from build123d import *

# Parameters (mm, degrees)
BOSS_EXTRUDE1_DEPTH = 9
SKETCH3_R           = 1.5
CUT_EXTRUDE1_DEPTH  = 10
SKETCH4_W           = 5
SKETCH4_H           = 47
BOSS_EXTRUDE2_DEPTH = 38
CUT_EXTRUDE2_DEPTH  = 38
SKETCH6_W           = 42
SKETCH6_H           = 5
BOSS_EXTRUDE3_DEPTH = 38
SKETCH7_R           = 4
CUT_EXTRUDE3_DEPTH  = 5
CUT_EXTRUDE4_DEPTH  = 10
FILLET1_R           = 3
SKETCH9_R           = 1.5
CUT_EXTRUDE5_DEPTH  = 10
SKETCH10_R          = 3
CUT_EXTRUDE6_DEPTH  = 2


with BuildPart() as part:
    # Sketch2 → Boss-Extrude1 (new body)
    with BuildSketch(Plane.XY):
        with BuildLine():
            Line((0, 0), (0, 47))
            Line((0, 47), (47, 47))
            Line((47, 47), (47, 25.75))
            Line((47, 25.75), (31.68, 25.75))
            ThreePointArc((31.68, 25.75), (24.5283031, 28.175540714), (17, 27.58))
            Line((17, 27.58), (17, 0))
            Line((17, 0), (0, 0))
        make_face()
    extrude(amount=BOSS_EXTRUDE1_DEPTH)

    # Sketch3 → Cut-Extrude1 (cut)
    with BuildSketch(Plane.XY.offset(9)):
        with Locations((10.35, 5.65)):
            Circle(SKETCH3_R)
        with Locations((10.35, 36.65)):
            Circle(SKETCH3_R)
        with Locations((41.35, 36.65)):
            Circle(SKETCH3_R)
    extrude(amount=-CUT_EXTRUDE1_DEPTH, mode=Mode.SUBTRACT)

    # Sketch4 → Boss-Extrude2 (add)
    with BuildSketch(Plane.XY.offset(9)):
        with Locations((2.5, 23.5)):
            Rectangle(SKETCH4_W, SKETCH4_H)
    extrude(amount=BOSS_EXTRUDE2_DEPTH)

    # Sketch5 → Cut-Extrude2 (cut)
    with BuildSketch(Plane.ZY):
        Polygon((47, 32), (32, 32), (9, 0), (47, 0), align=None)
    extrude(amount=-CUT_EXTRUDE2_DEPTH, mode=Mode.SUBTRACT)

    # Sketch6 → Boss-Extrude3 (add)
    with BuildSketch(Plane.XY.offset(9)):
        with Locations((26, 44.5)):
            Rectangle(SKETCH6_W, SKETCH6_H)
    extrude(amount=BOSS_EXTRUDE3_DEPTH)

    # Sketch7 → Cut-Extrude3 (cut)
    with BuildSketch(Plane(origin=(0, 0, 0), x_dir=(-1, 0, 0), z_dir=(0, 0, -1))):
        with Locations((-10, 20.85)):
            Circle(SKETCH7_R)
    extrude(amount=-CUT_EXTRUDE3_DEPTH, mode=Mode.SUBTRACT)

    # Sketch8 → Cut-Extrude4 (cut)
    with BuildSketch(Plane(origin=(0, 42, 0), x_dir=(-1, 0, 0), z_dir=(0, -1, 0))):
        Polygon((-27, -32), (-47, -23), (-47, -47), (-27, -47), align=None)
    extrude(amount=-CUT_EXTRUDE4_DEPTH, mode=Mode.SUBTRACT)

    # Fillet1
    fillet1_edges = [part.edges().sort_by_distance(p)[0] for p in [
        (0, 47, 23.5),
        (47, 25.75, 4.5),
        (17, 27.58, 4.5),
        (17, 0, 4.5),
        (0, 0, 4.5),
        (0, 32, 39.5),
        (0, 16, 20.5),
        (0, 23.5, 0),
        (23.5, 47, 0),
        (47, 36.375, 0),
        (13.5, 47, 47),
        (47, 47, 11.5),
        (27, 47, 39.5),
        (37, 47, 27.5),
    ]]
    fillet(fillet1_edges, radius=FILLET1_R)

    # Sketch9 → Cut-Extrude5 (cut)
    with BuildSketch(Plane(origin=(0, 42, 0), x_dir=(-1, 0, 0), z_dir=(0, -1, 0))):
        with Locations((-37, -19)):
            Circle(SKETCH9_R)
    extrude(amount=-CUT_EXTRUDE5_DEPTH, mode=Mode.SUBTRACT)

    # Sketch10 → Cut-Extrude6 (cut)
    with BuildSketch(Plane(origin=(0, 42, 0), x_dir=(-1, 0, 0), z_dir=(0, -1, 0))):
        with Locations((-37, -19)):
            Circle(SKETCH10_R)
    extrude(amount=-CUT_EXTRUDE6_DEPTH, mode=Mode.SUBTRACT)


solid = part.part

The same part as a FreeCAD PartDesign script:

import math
import FreeCAD as App
import Part
import Sketcher
Q = App.Units.Quantity


def edges_at(feature, points):
    """Names of the edges that pass closest to the given points."""
    edges = feature.Shape.Edges
    near = lambda p: min(range(len(edges)), key=lambda i: edges[i].distToShape(Part.Vertex(*p))[0])
    return sorted({f"Edge{near(p) + 1}" for p in points})

doc = App.newDocument("Part")
body = doc.addObject("PartDesign::Body", "Body")

# Sketch on XY plane
sketch1 = doc.addObject("Sketcher::SketchObject", "Sketch")
body.addObject(sketch1)
sketch1.AttachmentSupport = (doc.XY_Plane, [""])
sketch1.MapMode = "FlatFace"
sketch1.addGeometry([
    Part.LineSegment(App.Vector(0, 47, 0), App.Vector(0, 0, 0)),  # 0
    Part.LineSegment(App.Vector(0, 0, 0), App.Vector(17, 0, 0)),  # 1
    Part.LineSegment(App.Vector(17, 0, 0), App.Vector(17, 28, 0)),  # 2
    Part.ArcOfCircle(Part.Circle(App.Vector(22, 10, 0), App.Vector(0, 0, 1), 19), math.radians(60), math.radians(106)),  # 3
    Part.LineSegment(App.Vector(32, 26, 0), App.Vector(47, 26, 0)),  # 4
    Part.LineSegment(App.Vector(47, 26, 0), App.Vector(47, 47, 0)),  # 5
    Part.LineSegment(App.Vector(47, 47, 0), App.Vector(0, 47, 0)),  # 6
], False)
sketch1.addConstraint([
    Sketcher.Constraint("Coincident", 0, 2, 1, 1),
    Sketcher.Constraint("Coincident", 1, 2, 2, 1),
    Sketcher.Constraint("Coincident", 2, 2, 3, 2),
    Sketcher.Constraint("Coincident", 3, 1, 4, 1),
    Sketcher.Constraint("Coincident", 4, 2, 5, 1),
    Sketcher.Constraint("Coincident", 5, 2, 6, 1),
    Sketcher.Constraint("Coincident", 6, 2, 0, 1),
    Sketcher.Constraint("Vertical", 0),
    Sketcher.Constraint("Horizontal", 1),
    Sketcher.Constraint("Vertical", 2),
    Sketcher.Constraint("Horizontal", 4),
    Sketcher.Constraint("Vertical", 5),
    Sketcher.Constraint("Horizontal", 6),
    Sketcher.Constraint("Coincident", 0, 2, -1, 1),
    Sketcher.Constraint("Equal", 6, 0),
    Sketcher.Constraint("DistanceX", 1, 1, 1, 2, Q("17 mm")),
    Sketcher.Constraint("DistanceX", 6, 2, 6, 1, Q("47 mm")),
    Sketcher.Constraint("DistanceX", 4, 1, 4, 2, Q("15.32 mm")),
    Sketcher.Constraint("DistanceY", 2, 1, 2, 2, Q("27.58 mm")),
    Sketcher.Constraint("DistanceY", 5, 1, 5, 2, Q("21.25 mm")),
    Sketcher.Constraint("Radius", 3, Q("18.732363 mm")),
])
pad1 = doc.addObject("PartDesign::Pad", "Pad")
body.addObject(pad1)
pad1.Profile = sketch1
pad1.Length = 9

# Sketch on XY plane
sketch2 = doc.addObject("Sketcher::SketchObject", "Sketch001")
body.addObject(sketch2)
sketch2.AttachmentSupport = (doc.XY_Plane, [""])
sketch2.MapMode = "FlatFace"
sketch2.AttachmentOffset = App.Placement(App.Vector(0, 0, 9), App.Rotation())
sketch2.addGeometry([
    Part.Circle(App.Vector(10.3, 5.7, 0), App.Vector(0, 0, 1), 1.5),
    Part.Circle(App.Vector(10.3, 36.6, 0), App.Vector(0, 0, 1), 1.5),
    Part.Circle(App.Vector(41.4, 36.6, 0), App.Vector(0, 0, 1), 1.5),
], False)
sketch2.addConstraint([
    Sketcher.Constraint("Equal", 0, 1),
    Sketcher.Constraint("Equal", 1, 2),
    Sketcher.Constraint("Horizontal", 1, 3, 2, 3),
    Sketcher.Constraint("Vertical", 0, 3, 1, 3),
    Sketcher.Constraint("Diameter", 0, Q("3 mm")),
    Sketcher.Constraint("DistanceY", 0, 3, 1, 3, Q("31 mm")),
    Sketcher.Constraint("DistanceX", 1, 3, 2, 3, Q("31 mm")),
    Sketcher.Constraint("DistanceX", -1, 1, 0, 3, Q("10.35 mm")),
    Sketcher.Constraint("DistanceY", -1, 1, 0, 3, Q("5.65 mm")),
])
pocket1 = doc.addObject("PartDesign::Pocket", "Pocket")
body.addObject(pocket1)
pocket1.Profile = sketch2
pocket1.Length = 10

# Sketch on XY plane
sketch3 = doc.addObject("Sketcher::SketchObject", "Sketch002")
body.addObject(sketch3)
sketch3.AttachmentSupport = (doc.XY_Plane, [""])
sketch3.MapMode = "FlatFace"
sketch3.AttachmentOffset = App.Placement(App.Vector(0, 0, 9), App.Rotation())
sketch3.addGeometry([
    Part.LineSegment(App.Vector(0, 47, 0), App.Vector(0, 0, 0)),
    Part.LineSegment(App.Vector(0, 0, 0), App.Vector(5, 0, 0)),
    Part.LineSegment(App.Vector(5, 0, 0), App.Vector(5, 47, 0)),
    Part.LineSegment(App.Vector(5, 47, 0), App.Vector(0, 47, 0)),
], False)
sketch3.addConstraint([
    Sketcher.Constraint("Coincident", 0, 2, 1, 1),
    Sketcher.Constraint("Coincident", 1, 2, 2, 1),
    Sketcher.Constraint("Coincident", 2, 2, 3, 1),
    Sketcher.Constraint("Coincident", 3, 2, 0, 1),
    Sketcher.Constraint("Vertical", 0),
    Sketcher.Constraint("Horizontal", 1),
    Sketcher.Constraint("Vertical", 2),
    Sketcher.Constraint("Horizontal", 3),
    Sketcher.Constraint("Coincident", 0, 2, -1, 1),
    Sketcher.Constraint("DistanceX", 1, 1, 1, 2, Q("5 mm")),
    Sketcher.Constraint("DistanceY", 0, 2, 0, 1, Q("47 mm")),
])
pad2 = doc.addObject("PartDesign::Pad", "Pad001")
body.addObject(pad2)
pad2.Profile = sketch3
pad2.Length = 38

# Sketch on YZ plane
sketch4 = doc.addObject("Sketcher::SketchObject", "Sketch003")
body.addObject(sketch4)
sketch4.AttachmentSupport = (doc.YZ_Plane, [""])
sketch4.MapMode = "FlatFace"
sketch4.addGeometry([
    Part.LineSegment(App.Vector(32, 47, 0), App.Vector(32, 32, 0)),
    Part.LineSegment(App.Vector(32, 32, 0), App.Vector(0, 9, 0)),
    Part.LineSegment(App.Vector(0, 9, 0), App.Vector(0, 47, 0)),
    Part.LineSegment(App.Vector(0, 47, 0), App.Vector(32, 47, 0)),
], False)
sketch4.addConstraint([
    Sketcher.Constraint("Coincident", 0, 2, 1, 1),
    Sketcher.Constraint("Coincident", 1, 2, 2, 1),
    Sketcher.Constraint("Coincident", 2, 2, 3, 1),
    Sketcher.Constraint("Coincident", 3, 2, 0, 1),
    Sketcher.Constraint("Vertical", 0),
    Sketcher.Constraint("Vertical", 2),
    Sketcher.Constraint("Horizontal", 3),
    Sketcher.Constraint("PointOnObject", 1, 2, -2),
    Sketcher.Constraint("DistanceX", 3, 1, 3, 2, Q("32 mm")),
    Sketcher.Constraint("DistanceY", 0, 2, 0, 1, Q("15 mm")),
    Sketcher.Constraint("DistanceY", 2, 1, 2, 2, Q("38 mm")),
    Sketcher.Constraint("DistanceY", -1, 1, 0, 2, Q("32 mm")),
])
pocket2 = doc.addObject("PartDesign::Pocket", "Pocket001")
body.addObject(pocket2)
pocket2.Profile = sketch4
pocket2.Length = 38
pocket2.Reversed = True

# Sketch on XY plane
sketch5 = doc.addObject("Sketcher::SketchObject", "Sketch004")
body.addObject(sketch5)
sketch5.AttachmentSupport = (doc.XY_Plane, [""])
sketch5.MapMode = "FlatFace"
sketch5.AttachmentOffset = App.Placement(App.Vector(0, 0, 9), App.Rotation())
sketch5.addGeometry([
    Part.LineSegment(App.Vector(5, 47, 0), App.Vector(5, 42, 0)),
    Part.LineSegment(App.Vector(5, 42, 0), App.Vector(47, 42, 0)),
    Part.LineSegment(App.Vector(47, 42, 0), App.Vector(47, 47, 0)),
    Part.LineSegment(App.Vector(47, 47, 0), App.Vector(5, 47, 0)),
], False)
sketch5.addConstraint([
    Sketcher.Constraint("Coincident", 0, 2, 1, 1),
    Sketcher.Constraint("Coincident", 1, 2, 2, 1),
    Sketcher.Constraint("Coincident", 2, 2, 3, 1),
    Sketcher.Constraint("Coincident", 3, 2, 0, 1),
    Sketcher.Constraint("Vertical", 0),
    Sketcher.Constraint("Horizontal", 1),
    Sketcher.Constraint("Vertical", 2),
    Sketcher.Constraint("Horizontal", 3),
    Sketcher.Constraint("DistanceX", 1, 1, 1, 2, Q("42 mm")),
    Sketcher.Constraint("DistanceY", 0, 2, 0, 1, Q("5 mm")),
    Sketcher.Constraint("DistanceX", -1, 1, 0, 2, Q("5 mm")),
    Sketcher.Constraint("DistanceY", -1, 1, 0, 2, Q("42 mm")),
])
pad3 = doc.addObject("PartDesign::Pad", "Pad002")
body.addObject(pad3)
pad3.Profile = sketch5
pad3.Length = 38

# Sketch on XY plane
sketch6 = doc.addObject("Sketcher::SketchObject", "Sketch005")
body.addObject(sketch6)
sketch6.AttachmentSupport = (doc.XY_Plane, [""])
sketch6.MapMode = "FlatFace"
sketch6.addGeometry(Part.Circle(App.Vector(10, 20.9, 0), App.Vector(0, 0, 1), 4), False)
sketch6.addConstraint([
    Sketcher.Constraint("Diameter", 0, Q("8 mm")),
    Sketcher.Constraint("DistanceX", -1, 1, 0, 3, Q("10 mm")),
    Sketcher.Constraint("DistanceY", -1, 1, 0, 3, Q("20.85 mm")),
])
pocket3 = doc.addObject("PartDesign::Pocket", "Pocket002")
body.addObject(pocket3)
pocket3.Profile = sketch6
pocket3.Length = 5
pocket3.Reversed = True

# Sketch on XZ plane
sketch7 = doc.addObject("Sketcher::SketchObject", "Sketch006")
body.addObject(sketch7)
sketch7.AttachmentSupport = (doc.XZ_Plane, [""])
sketch7.MapMode = "FlatFace"
sketch7.AttachmentOffset = App.Placement(App.Vector(0, 0, -42), App.Rotation())
sketch7.addGeometry([
    Part.LineSegment(App.Vector(27, 32, 0), App.Vector(47, 23, 0)),
    Part.LineSegment(App.Vector(47, 23, 0), App.Vector(47, 47, 0)),
    Part.LineSegment(App.Vector(47, 47, 0), App.Vector(27, 47, 0)),
    Part.LineSegment(App.Vector(27, 47, 0), App.Vector(27, 32, 0)),
], False)
sketch7.addConstraint([
    Sketcher.Constraint("Coincident", 0, 2, 1, 1),
    Sketcher.Constraint("Coincident", 1, 2, 2, 1),
    Sketcher.Constraint("Coincident", 2, 2, 3, 1),
    Sketcher.Constraint("Coincident", 3, 2, 0, 1),
    Sketcher.Constraint("Vertical", 1),
    Sketcher.Constraint("Horizontal", 2),
    Sketcher.Constraint("Vertical", 3),
    Sketcher.Constraint("DistanceX", 2, 2, 2, 1, Q("20 mm")),
    Sketcher.Constraint("DistanceY", 1, 1, 1, 2, Q("24 mm")),
    Sketcher.Constraint("DistanceY", 3, 2, 3, 1, Q("15 mm")),
    Sketcher.Constraint("DistanceX", -1, 1, 0, 2, Q("47 mm")),
    Sketcher.Constraint("DistanceY", -1, 1, 0, 2, Q("23 mm")),
])
pocket4 = doc.addObject("PartDesign::Pocket", "Pocket003")
body.addObject(pocket4)
pocket4.Profile = sketch7
pocket4.Length = 10
doc.recompute()

fillet = doc.addObject("PartDesign::Fillet", "Fillet")
body.addObject(fillet)
fillet.Base = (pocket4, edges_at(pocket4, [
    (0, 47, 23.5),
    (47, 25.75, 4.5),
    (17, 27.58, 4.5),
    (17, 0, 4.5),
    (0, 0, 4.5),
    (0, 32, 39.5),
    (0, 16, 20.5),
    (0, 23.5, 0),
    (23.5, 47, 0),
    (47, 36.375, 0),
    (13.5, 47, 47),
    (47, 47, 11.5),
    (27, 47, 39.5),
    (37, 47, 27.5),
]))
fillet.Radius = 3

# Sketch on XZ plane
sketch8 = doc.addObject("Sketcher::SketchObject", "Sketch007")
body.addObject(sketch8)
sketch8.AttachmentSupport = (doc.XZ_Plane, [""])
sketch8.MapMode = "FlatFace"
sketch8.AttachmentOffset = App.Placement(App.Vector(0, 0, -42), App.Rotation())
sketch8.addGeometry(Part.Circle(App.Vector(37, 19, 0), App.Vector(0, 0, 1), 1.5), False)
sketch8.addConstraint([
    Sketcher.Constraint("Diameter", 0, Q("3 mm")),
    Sketcher.Constraint("DistanceX", -1, 1, 0, 3, Q("37 mm")),
    Sketcher.Constraint("DistanceY", -1, 1, 0, 3, Q("19 mm")),
])
pocket5 = doc.addObject("PartDesign::Pocket", "Pocket004")
body.addObject(pocket5)
pocket5.Profile = sketch8
pocket5.Length = 10

# Sketch on XZ plane
sketch9 = doc.addObject("Sketcher::SketchObject", "Sketch008")
body.addObject(sketch9)
sketch9.AttachmentSupport = (doc.XZ_Plane, [""])
sketch9.MapMode = "FlatFace"
sketch9.AttachmentOffset = App.Placement(App.Vector(0, 0, -42), App.Rotation())
sketch9.addGeometry(Part.Circle(App.Vector(37, 19, 0), App.Vector(0, 0, 1), 3), False)
sketch9.addConstraint([
    Sketcher.Constraint("Diameter", 0, Q("6 mm")),
    Sketcher.Constraint("DistanceX", -1, 1, 0, 3, Q("37 mm")),
    Sketcher.Constraint("DistanceY", -1, 1, 0, 3, Q("19 mm")),
])
pocket6 = doc.addObject("PartDesign::Pocket", "Pocket005")
body.addObject(pocket6)
pocket6.Profile = sketch9
pocket6.Length = 2

doc.recompute()
